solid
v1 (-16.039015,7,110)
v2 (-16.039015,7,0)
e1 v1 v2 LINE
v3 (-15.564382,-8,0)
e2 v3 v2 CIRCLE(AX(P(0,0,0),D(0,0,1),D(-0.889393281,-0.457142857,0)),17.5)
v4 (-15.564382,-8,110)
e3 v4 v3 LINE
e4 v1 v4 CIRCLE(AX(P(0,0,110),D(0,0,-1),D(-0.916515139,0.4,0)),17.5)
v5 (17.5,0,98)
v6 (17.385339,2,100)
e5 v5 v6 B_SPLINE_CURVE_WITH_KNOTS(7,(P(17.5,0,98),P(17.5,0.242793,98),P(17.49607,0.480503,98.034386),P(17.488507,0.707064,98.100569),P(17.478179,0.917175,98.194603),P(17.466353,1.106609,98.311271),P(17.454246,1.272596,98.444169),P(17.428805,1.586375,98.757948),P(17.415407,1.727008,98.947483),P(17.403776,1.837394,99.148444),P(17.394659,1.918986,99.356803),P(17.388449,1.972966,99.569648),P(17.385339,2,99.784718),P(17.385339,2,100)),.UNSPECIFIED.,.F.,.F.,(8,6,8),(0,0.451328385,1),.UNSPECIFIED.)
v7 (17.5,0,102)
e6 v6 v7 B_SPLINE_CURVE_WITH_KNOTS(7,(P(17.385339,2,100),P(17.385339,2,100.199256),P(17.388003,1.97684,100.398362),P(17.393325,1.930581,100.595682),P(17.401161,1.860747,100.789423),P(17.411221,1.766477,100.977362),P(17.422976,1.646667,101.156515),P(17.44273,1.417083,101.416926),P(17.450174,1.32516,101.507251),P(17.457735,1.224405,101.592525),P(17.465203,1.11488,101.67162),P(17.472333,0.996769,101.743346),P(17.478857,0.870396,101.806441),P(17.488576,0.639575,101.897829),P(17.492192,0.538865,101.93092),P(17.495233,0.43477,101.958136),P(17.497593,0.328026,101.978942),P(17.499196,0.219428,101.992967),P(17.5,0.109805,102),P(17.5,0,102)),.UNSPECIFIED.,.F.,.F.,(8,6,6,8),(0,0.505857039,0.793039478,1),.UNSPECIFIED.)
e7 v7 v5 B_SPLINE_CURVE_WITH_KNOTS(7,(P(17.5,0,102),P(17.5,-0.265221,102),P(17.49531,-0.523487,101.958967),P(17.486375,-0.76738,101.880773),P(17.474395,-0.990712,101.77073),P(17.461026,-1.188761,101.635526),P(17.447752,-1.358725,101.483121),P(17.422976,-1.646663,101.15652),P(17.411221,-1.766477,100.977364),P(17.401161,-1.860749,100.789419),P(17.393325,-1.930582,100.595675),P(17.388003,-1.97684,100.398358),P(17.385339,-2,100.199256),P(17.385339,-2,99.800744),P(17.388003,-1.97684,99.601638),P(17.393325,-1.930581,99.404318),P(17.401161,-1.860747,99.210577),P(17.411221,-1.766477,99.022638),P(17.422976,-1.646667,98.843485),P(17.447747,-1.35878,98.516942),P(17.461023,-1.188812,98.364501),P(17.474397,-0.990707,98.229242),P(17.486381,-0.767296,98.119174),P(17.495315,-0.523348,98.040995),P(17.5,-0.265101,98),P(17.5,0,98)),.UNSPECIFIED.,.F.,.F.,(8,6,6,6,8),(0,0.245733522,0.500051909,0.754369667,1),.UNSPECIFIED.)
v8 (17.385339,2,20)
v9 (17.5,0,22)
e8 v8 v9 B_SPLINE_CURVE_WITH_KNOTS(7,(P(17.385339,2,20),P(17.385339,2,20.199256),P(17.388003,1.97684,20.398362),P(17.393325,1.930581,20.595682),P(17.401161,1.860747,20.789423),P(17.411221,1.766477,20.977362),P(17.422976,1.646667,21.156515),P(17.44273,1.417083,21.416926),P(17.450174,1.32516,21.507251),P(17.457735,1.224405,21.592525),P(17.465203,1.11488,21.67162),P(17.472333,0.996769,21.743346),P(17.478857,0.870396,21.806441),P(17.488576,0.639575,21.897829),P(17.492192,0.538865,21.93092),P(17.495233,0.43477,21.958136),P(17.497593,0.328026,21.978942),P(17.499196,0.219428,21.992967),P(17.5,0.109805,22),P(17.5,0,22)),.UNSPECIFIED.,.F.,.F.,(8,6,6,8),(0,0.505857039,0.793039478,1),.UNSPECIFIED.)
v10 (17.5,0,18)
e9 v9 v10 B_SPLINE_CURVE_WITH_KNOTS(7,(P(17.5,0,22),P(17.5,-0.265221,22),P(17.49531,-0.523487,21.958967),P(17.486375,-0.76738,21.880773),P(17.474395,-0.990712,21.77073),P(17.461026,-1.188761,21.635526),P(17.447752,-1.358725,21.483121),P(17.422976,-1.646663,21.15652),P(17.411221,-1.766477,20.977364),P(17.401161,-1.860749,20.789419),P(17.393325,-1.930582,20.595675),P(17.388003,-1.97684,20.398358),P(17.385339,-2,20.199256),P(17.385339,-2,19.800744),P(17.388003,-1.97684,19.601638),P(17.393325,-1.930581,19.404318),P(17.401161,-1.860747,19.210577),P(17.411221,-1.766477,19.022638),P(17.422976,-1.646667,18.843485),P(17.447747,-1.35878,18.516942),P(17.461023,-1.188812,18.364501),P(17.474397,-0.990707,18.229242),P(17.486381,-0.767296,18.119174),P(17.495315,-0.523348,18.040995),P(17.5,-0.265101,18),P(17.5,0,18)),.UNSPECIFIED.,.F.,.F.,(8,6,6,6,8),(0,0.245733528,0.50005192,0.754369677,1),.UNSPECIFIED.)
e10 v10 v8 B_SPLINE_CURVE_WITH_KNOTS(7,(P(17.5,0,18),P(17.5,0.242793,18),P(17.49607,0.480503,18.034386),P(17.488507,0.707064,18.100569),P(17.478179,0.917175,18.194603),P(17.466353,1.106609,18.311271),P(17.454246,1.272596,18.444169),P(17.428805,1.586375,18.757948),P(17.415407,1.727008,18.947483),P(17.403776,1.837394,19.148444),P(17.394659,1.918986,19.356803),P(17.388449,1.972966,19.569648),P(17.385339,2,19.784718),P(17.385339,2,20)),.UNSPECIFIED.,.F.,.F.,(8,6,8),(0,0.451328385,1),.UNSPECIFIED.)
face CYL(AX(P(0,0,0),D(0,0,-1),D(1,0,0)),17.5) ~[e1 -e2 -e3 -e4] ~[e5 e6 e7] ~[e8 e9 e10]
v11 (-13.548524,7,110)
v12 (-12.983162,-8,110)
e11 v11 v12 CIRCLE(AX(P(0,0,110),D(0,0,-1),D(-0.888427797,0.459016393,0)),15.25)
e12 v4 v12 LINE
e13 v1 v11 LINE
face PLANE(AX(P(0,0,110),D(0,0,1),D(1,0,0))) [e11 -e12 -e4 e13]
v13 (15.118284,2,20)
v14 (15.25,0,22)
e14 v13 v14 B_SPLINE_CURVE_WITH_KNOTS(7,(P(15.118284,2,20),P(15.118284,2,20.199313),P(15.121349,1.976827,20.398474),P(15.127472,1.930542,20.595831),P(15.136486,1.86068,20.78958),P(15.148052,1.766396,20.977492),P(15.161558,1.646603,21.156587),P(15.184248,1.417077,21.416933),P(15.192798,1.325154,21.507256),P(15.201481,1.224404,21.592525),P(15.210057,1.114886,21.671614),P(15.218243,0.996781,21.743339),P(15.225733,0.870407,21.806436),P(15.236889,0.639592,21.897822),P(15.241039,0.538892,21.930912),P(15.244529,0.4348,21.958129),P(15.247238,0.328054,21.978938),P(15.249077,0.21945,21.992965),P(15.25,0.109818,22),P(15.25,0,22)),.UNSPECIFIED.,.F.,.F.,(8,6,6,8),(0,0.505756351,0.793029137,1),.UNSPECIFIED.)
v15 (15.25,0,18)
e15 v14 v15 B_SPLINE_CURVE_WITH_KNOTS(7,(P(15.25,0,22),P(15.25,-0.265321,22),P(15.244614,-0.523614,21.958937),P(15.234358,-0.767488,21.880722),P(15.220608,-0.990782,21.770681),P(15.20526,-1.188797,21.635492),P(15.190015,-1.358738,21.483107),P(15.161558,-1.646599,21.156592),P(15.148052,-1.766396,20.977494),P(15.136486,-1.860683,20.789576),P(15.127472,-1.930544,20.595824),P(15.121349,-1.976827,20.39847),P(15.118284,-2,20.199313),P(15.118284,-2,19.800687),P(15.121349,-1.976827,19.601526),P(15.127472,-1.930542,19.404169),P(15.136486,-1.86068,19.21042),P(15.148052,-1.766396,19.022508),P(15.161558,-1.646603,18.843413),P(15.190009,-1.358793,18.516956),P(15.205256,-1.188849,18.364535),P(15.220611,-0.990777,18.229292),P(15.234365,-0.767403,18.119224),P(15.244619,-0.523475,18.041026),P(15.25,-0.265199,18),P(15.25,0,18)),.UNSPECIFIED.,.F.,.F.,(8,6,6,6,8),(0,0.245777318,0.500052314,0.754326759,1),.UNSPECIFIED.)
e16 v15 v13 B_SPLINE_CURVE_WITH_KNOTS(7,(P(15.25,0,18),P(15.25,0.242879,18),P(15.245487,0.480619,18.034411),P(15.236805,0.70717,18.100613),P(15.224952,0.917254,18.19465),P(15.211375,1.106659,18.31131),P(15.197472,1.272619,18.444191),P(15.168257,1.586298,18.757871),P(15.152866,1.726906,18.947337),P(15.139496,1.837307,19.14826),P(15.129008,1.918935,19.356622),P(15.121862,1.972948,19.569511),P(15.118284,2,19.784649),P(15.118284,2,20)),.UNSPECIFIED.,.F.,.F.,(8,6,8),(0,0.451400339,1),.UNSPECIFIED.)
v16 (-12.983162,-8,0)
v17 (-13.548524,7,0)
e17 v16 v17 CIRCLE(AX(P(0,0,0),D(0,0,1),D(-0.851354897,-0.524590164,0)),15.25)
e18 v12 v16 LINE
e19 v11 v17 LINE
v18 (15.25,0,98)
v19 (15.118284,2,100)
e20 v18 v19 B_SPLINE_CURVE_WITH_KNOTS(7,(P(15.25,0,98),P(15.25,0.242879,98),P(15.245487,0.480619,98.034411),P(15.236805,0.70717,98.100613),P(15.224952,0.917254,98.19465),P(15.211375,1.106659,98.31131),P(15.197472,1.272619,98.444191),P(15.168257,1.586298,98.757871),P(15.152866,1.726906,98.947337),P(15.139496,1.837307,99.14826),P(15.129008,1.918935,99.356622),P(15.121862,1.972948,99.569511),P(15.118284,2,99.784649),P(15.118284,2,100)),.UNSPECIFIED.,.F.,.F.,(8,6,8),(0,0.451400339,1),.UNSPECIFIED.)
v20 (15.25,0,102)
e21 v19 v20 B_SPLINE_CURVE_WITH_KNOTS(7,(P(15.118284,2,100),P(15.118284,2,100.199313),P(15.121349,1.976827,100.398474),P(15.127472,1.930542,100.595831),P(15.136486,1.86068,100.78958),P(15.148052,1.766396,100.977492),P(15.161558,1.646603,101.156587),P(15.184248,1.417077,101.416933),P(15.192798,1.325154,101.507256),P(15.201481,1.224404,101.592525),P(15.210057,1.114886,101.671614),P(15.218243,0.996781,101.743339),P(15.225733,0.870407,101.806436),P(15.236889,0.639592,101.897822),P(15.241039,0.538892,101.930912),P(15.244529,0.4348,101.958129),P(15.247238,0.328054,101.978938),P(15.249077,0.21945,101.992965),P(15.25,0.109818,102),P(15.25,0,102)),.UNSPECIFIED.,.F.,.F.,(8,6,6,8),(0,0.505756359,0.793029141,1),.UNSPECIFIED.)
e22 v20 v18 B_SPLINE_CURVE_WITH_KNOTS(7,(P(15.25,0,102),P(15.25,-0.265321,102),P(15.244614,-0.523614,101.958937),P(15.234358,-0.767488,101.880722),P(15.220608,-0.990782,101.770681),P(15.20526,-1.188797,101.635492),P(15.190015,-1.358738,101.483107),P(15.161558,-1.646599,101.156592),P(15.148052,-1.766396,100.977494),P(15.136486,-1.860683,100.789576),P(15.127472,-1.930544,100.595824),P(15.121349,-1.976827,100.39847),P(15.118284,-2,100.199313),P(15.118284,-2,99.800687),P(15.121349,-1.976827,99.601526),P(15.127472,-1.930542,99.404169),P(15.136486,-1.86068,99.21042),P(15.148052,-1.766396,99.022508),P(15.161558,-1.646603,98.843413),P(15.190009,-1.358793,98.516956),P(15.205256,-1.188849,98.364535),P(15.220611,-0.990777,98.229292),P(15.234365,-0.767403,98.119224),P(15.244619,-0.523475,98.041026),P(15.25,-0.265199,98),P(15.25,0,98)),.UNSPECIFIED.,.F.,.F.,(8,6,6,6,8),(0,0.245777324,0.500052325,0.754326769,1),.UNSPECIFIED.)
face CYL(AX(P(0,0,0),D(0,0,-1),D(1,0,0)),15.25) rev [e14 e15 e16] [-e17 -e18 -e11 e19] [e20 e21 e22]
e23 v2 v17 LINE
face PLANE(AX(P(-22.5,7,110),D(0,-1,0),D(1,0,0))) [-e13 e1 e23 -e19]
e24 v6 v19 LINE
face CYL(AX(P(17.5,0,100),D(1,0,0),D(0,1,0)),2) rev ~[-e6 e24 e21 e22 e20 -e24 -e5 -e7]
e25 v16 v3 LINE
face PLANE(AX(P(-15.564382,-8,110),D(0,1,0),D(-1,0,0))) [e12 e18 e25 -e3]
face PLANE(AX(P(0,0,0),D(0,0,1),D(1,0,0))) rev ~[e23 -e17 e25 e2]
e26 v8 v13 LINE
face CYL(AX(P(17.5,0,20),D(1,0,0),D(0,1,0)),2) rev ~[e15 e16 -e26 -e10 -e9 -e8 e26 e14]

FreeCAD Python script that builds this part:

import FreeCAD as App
import Part
import Sketcher


def add_polygon(sketch, points):
    """Adds a closed chain of lines whose ends are joined by coincident constraints."""
    first, n = sketch.GeometryCount, len(points)
    for a, b in zip(points, points[1:] + points[:1]):
        sketch.addGeometry(Part.LineSegment(App.Vector(*a, 0), App.Vector(*b, 0)), False)
    for i in range(n):
        sketch.addConstraint(Sketcher.Constraint("Coincident", first + i, 2, first + (i + 1) % n, 1))

doc = App.newDocument("Part")
body = doc.addObject("PartDesign::Body", "Body")

# Sketch on XY plane
sketch1 = body.newObject("Sketcher::SketchObject", "Sketch")
sketch1.AttachmentSupport = (doc.getObject("XY_Plane"), [""])
sketch1.MapMode = "FlatFace"
sketch1.addGeometry([
    Part.Circle(App.Vector(0, 0, 0), App.Vector(0, 0, 1), 18),
    Part.Circle(App.Vector(0, 0, 0), App.Vector(0, 0, 1), 15),
], False)
sketch1.addConstraint([
    Sketcher.Constraint("Coincident", 0, 3, -1, 1),
    Sketcher.Constraint("Coincident", 1, 3, -1, 1),
    Sketcher.Constraint("Diameter", 0, 35.0),
    Sketcher.Constraint("Diameter", 1, 30.5),
])
pad1 = body.newObject("PartDesign::Pad", "Pad")
pad1.Profile = sketch1
pad1.Length = 110

# Sketch on XY plane
sketch2 = body.newObject("Sketcher::SketchObject", "Sketch001")
sketch2.AttachmentSupport = (doc.getObject("XY_Plane"), [""])
sketch2.MapMode = "FlatFace"
sketch2.AttachmentOffset = App.Placement(App.Vector(0, 0, 110), App.Rotation())
add_polygon(sketch2, [(-22, 7), (-22, -8), (-12, -8), (-12, 7)])  # lines 0-3
sketch2.addConstraint([
    Sketcher.Constraint("Vertical", 0),
    Sketcher.Constraint("Horizontal", 1),
    Sketcher.Constraint("Vertical", 2),
    Sketcher.Constraint("Horizontal", 3),
    Sketcher.Constraint("DistanceX", 1, 1, 1, 2, 10.0),
    Sketcher.Constraint("DistanceY", 0, 2, 0, 1, 15.0),
    Sketcher.Constraint("DistanceY", 0, 2, -1, 1, 8.0),
    Sketcher.Constraint("DistanceX", 0, 2, -1, 1, 22.5),
])
pocket1 = body.newObject("PartDesign::Pocket", "Pocket")
pocket1.Profile = sketch2
pocket1.Type = "ThroughAll"

# Sketch on YZ plane
sketch3 = body.newObject("Sketcher::SketchObject", "Sketch002")
sketch3.AttachmentSupport = (doc.getObject("YZ_Plane"), [""])
sketch3.MapMode = "FlatFace"
sketch3.AttachmentOffset = App.Placement(App.Vector(0, 0, 17.5), App.Rotation())
sketch3.addGeometry([
    Part.Circle(App.Vector(0, 100, 0), App.Vector(0, 0, 1), 2),
    Part.Circle(App.Vector(0, 20, 0), App.Vector(0, 0, 1), 2),
], False)
sketch3.addConstraint([
    Sketcher.Constraint("Equal", 0, 1),
    Sketcher.Constraint("PointOnObject", 0, 3, -2),
    Sketcher.Constraint("PointOnObject", 1, 3, -2),
    Sketcher.Constraint("Diameter", 0, 4.0),
    Sketcher.Constraint("DistanceY", 1, 3, 0, 3, 80.0),
    Sketcher.Constraint("DistanceY", -1, 1, 0, 3, 100.0),
])
pocket2 = body.newObject("PartDesign::Pocket", "Pocket001")
pocket2.Profile = sketch3
pocket2.Length = 10

doc.recompute()
